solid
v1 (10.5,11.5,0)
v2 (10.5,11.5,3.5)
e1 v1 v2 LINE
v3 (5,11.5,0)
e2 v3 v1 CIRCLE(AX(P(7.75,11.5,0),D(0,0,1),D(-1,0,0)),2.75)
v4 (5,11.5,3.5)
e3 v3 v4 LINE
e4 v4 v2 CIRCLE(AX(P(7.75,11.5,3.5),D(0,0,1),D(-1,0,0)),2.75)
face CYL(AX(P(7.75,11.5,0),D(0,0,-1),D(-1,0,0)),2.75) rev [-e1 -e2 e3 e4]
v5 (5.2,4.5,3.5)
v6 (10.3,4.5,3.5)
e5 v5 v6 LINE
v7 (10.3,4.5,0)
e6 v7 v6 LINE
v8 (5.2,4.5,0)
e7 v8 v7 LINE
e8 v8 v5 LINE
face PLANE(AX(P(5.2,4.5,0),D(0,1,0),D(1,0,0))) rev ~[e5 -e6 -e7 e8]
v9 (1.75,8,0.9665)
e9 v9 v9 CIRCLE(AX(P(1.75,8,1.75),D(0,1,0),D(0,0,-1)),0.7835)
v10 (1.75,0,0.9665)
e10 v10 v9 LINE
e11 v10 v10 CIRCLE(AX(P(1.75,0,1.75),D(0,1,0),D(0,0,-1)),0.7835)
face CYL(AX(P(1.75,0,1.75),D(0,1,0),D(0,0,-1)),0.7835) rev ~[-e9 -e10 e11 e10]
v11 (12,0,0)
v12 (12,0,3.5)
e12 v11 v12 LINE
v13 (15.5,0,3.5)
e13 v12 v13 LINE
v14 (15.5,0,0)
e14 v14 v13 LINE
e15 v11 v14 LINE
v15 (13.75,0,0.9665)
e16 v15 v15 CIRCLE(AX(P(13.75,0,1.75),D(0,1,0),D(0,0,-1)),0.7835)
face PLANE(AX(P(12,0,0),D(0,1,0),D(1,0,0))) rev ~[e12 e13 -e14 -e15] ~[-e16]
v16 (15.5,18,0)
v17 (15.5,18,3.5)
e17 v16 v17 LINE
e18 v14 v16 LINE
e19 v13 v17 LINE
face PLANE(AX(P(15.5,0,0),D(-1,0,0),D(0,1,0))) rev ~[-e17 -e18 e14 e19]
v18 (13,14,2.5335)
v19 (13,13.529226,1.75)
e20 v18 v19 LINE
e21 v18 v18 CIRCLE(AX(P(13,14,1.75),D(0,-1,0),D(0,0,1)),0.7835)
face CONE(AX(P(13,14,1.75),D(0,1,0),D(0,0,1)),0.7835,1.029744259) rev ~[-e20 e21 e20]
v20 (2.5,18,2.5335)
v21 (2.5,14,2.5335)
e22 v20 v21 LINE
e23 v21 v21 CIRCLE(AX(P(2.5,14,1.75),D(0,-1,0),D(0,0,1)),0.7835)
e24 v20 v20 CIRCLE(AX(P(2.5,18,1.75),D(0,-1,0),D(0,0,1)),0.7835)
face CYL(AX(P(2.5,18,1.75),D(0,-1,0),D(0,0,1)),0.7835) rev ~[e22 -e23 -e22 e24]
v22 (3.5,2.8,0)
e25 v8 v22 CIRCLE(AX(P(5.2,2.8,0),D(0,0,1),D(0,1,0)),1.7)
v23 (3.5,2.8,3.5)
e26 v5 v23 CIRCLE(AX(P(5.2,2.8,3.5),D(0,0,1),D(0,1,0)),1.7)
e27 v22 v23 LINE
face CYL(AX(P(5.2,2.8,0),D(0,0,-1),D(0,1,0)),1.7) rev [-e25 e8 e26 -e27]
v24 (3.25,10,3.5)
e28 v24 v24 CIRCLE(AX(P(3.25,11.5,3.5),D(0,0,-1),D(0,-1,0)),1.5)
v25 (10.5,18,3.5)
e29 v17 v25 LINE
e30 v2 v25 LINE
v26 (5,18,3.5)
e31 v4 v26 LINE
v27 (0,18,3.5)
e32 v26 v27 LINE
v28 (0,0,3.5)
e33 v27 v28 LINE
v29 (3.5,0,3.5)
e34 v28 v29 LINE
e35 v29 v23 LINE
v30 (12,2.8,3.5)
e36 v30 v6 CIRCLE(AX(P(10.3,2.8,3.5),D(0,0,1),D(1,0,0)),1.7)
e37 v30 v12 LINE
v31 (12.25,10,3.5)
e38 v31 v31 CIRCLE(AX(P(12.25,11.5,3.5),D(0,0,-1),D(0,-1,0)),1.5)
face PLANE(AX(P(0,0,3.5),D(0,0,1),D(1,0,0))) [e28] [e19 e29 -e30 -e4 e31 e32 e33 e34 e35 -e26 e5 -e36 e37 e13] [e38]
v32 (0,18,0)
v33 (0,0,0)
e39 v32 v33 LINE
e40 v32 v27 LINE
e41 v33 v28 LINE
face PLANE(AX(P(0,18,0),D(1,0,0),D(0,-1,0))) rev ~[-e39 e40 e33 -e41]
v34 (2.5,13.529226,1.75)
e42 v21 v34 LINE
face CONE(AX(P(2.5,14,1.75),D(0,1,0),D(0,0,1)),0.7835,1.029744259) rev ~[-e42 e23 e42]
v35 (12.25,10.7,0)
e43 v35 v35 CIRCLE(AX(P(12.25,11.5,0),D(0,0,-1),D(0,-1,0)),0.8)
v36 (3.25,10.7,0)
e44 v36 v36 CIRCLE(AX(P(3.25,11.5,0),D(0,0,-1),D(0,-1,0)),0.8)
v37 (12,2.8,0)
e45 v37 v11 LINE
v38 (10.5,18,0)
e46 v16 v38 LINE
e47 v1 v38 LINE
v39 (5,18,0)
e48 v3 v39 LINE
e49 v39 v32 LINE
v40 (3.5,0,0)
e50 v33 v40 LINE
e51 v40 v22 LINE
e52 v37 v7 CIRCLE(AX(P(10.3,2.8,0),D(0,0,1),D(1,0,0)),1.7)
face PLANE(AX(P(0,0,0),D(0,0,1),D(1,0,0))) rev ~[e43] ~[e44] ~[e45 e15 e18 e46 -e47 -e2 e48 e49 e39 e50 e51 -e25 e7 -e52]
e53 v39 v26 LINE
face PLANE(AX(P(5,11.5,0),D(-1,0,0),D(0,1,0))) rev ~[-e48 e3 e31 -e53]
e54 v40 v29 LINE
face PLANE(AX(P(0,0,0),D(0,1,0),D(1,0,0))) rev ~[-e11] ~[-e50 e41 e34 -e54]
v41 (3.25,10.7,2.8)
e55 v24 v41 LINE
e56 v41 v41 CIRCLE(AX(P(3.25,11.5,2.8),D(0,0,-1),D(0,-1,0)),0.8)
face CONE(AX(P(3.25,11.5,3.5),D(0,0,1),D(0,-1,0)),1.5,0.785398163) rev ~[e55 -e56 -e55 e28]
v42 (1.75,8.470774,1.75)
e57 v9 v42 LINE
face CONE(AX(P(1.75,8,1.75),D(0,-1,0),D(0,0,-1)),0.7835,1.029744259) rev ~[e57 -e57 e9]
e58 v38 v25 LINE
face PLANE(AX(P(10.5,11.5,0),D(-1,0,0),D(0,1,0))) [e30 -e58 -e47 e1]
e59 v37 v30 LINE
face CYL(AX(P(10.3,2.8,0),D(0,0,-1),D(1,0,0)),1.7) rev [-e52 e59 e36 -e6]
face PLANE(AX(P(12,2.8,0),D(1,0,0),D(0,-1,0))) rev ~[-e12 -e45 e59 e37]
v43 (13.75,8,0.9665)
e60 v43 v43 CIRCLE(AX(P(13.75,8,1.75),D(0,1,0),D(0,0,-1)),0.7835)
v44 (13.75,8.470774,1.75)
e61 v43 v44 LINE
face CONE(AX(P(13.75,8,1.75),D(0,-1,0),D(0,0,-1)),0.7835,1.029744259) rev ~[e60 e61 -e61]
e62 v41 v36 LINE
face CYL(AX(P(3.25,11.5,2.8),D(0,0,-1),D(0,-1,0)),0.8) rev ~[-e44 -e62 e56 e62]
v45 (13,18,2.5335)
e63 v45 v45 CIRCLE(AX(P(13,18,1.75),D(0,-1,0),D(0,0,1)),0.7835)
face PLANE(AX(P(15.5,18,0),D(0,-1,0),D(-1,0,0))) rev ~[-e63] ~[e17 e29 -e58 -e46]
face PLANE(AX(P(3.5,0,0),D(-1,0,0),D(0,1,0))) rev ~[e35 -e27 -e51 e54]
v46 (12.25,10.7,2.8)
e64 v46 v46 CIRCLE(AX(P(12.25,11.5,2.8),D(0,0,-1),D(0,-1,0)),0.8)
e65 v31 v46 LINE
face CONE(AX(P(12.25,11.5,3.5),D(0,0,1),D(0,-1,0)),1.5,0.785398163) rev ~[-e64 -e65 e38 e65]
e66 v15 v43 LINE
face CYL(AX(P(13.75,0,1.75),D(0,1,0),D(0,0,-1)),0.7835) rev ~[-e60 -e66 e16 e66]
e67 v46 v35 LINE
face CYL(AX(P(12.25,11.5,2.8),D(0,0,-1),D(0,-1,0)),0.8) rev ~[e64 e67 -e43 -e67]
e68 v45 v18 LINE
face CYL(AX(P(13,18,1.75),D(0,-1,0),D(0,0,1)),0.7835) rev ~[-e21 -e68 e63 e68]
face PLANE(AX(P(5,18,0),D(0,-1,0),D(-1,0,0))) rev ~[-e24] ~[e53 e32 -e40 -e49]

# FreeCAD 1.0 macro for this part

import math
import FreeCAD as App
import Part
import Sketcher

V = App.Vector
Q = App.Units.Quantity

doc = App.newDocument("Part")
body = doc.addObject("PartDesign::Body", "Body")

# Sketch on XY plane
sketch1 = doc.addObject("Sketcher::SketchObject", "Sketch")
body.addObject(sketch1)
sketch1.AttachmentSupport = (doc.XY_Plane, [""])
sketch1.MapMode = "FlatFace"
sketch1.addGeometry(Part.LineSegment(V(5, 18, 0), V(0, 18, 0)), False)
sketch1.addGeometry(Part.LineSegment(V(0, 18, 0), V(0, 0, 0)), False)
sketch1.addGeometry(Part.LineSegment(V(0, 0, 0), V(3.5, 0, 0)), False)
sketch1.addGeometry(Part.LineSegment(V(3.5, 0, 0), V(3.5, 2.8, 0)), False)
sketch1.addGeometry(Part.ArcOfCircle(Part.Circle(V(5.2, 2.8, 0), V(0, 0, 1), 1.7), math.radians(90), math.radians(180)), False)
sketch1.addGeometry(Part.LineSegment(V(5.2, 4.5, 0), V(10.3, 4.5, 0)), False)
sketch1.addGeometry(Part.ArcOfCircle(Part.Circle(V(10.3, 2.8, 0), V(0, 0, 1), 1.7), math.radians(0), math.radians(90)), False)
sketch1.addGeometry(Part.LineSegment(V(12, 2.8, 0), V(12, 0, 0)), False)
sketch1.addGeometry(Part.LineSegment(V(12, 0, 0), V(15.5, 0, 0)), False)
sketch1.addGeometry(Part.LineSegment(V(15.5, 0, 0), V(15.5, 18, 0)), False)
sketch1.addGeometry(Part.LineSegment(V(15.5, 18, 0), V(10.5, 18, 0)), False)
sketch1.addGeometry(Part.LineSegment(V(10.5, 18, 0), V(10.5, 11.5, 0)), False)
sketch1.addGeometry(Part.ArcOfCircle(Part.Circle(V(7.8, 11.5, 0), V(0, 0, 1), 2.8), math.radians(180), math.radians(360)), False)
sketch1.addGeometry(Part.LineSegment(V(5, 11.5, 0), V(5, 18, 0)), False)
sketch1.addConstraint(Sketcher.Constraint("Coincident", 0, 2, 1, 1))
sketch1.addConstraint(Sketcher.Constraint("Coincident", 1, 2, 2, 1))
sketch1.addConstraint(Sketcher.Constraint("Coincident", 2, 2, 3, 1))
sketch1.addConstraint(Sketcher.Constraint("Tangent", 3, 2, 4, 2))
sketch1.addConstraint(Sketcher.Constraint("Tangent", 4, 1, 5, 1))
sketch1.addConstraint(Sketcher.Constraint("Tangent", 5, 2, 6, 2))
sketch1.addConstraint(Sketcher.Constraint("Tangent", 6, 1, 7, 1))
sketch1.addConstraint(Sketcher.Constraint("Coincident", 7, 2, 8, 1))
sketch1.addConstraint(Sketcher.Constraint("Coincident", 8, 2, 9, 1))
sketch1.addConstraint(Sketcher.Constraint("Coincident", 9, 2, 10, 1))
sketch1.addConstraint(Sketcher.Constraint("Coincident", 10, 2, 11, 1))
sketch1.addConstraint(Sketcher.Constraint("Tangent", 11, 2, 12, 2))
sketch1.addConstraint(Sketcher.Constraint("Tangent", 12, 1, 13, 1))
sketch1.addConstraint(Sketcher.Constraint("Coincident", 13, 2, 0, 1))
sketch1.addConstraint(Sketcher.Constraint("Horizontal", 0))
sketch1.addConstraint(Sketcher.Constraint("Vertical", 1))
sketch1.addConstraint(Sketcher.Constraint("Horizontal", 2))
sketch1.addConstraint(Sketcher.Constraint("Vertical", 3))
sketch1.addConstraint(Sketcher.Constraint("Horizontal", 5))
sketch1.addConstraint(Sketcher.Constraint("Vertical", 7))
sketch1.addConstraint(Sketcher.Constraint("Horizontal", 8))
sketch1.addConstraint(Sketcher.Constraint("Vertical", 9))
sketch1.addConstraint(Sketcher.Constraint("Horizontal", 10))
sketch1.addConstraint(Sketcher.Constraint("Vertical", 11))
sketch1.addConstraint(Sketcher.Constraint("Vertical", 13))
sketch1.addConstraint(Sketcher.Constraint("Coincident", 1, 2, -1, 1))
sketch1.addConstraint(Sketcher.Constraint("Equal", 4, 6))
sketch1.addConstraint(Sketcher.Constraint("PointOnObject", 7, 2, -1))
sketch1.addConstraint(Sketcher.Constraint("Horizontal", 0, 2, 9, 2))
sketch1.addConstraint(Sketcher.Constraint("Equal", 2, 8))
sketch1.addConstraint(Sketcher.Constraint("Equal", 0, 10))
sketch1.addConstraint(Sketcher.Constraint("Radius", 4, Q("1.7 mm")))
sketch1.addConstraint(Sketcher.Constraint("DistanceX", 0, 2, 0, 1, Q("5 mm")))
sketch1.addConstraint(Sketcher.Constraint("DistanceY", 1, 2, 1, 1, Q("18 mm")))
sketch1.addConstraint(Sketcher.Constraint("Radius", 12, Q("2.75 mm")))
sketch1.addConstraint(Sketcher.Constraint("DistanceX", 2, 1, 2, 2, Q("3.5 mm")))
sketch1.addConstraint(Sketcher.Constraint("DistanceY", 3, 1, 3, 2, Q("2.8 mm")))
sketch1.addConstraint(Sketcher.Constraint("DistanceY", 11, 2, 11, 1, Q("6.5 mm")))
pad1 = doc.addObject("PartDesign::Pad", "Pad")
body.addObject(pad1)
pad1.Profile = sketch1
pad1.Length = 3.5

# Sketch on XY plane
sketch2 = doc.addObject("Sketcher::SketchObject", "Sketch001")
body.addObject(sketch2)
sketch2.AttachmentSupport = (doc.XY_Plane, [""])
sketch2.MapMode = "FlatFace"
sketch2.AttachmentOffset = App.Placement(V(0, 0, 3.5), App.Rotation())
sketch2.addGeometry(Part.Circle(V(3.2, 11.5, 0), V(0, 0, 1), 0.8), False)
sketch2.addGeometry(Part.Circle(V(12.2, 11.5, 0), V(0, 0, 1), 0.8), False)
sketch2.addConstraint(Sketcher.Constraint("Equal", 0, 1))
sketch2.addConstraint(Sketcher.Constraint("Horizontal", 0, 3, 1, 3))
sketch2.addConstraint(Sketcher.Constraint("Diameter", 0, Q("1.6 mm")))
sketch2.addConstraint(Sketcher.Constraint("DistanceX", 0, 3, 1, 3, Q("9 mm")))
sketch2.addConstraint(Sketcher.Constraint("DistanceY", -1, 1, 0, 3, Q("11.5 mm")))
sketch2.addConstraint(Sketcher.Constraint("DistanceX", -1, 1, 0, 3, Q("3.25 mm")))
doc.recompute()
hole = doc.addObject("PartDesign::Hole", "Hole")
body.addObject(hole)
hole.Profile = sketch2
hole.ThreadType = "None"
hole.Diameter = 1.6
hole.DepthType = "ThroughAll"
hole.HoleCutType = "Countersink"
hole.HoleCutDiameter = 3
hole.HoleCutCountersinkAngle = 90

# Sketch on XZ plane
sketch3 = doc.addObject("Sketcher::SketchObject", "Sketch002")
body.addObject(sketch3)
sketch3.AttachmentSupport = (doc.XZ_Plane, [""])
sketch3.MapMode = "FlatFace"
sketch3.AttachmentOffset = App.Placement(V(0, 0, -18), App.Rotation())
sketch3.addGeometry(Part.Circle(V(2.5, 1.8, 0), V(0, 0, 1), 0.8), False)
sketch3.addGeometry(Part.Circle(V(13, 1.8, 0), V(0, 0, 1), 0.8), False)
sketch3.addConstraint(Sketcher.Constraint("Equal", 0, 1))
sketch3.addConstraint(Sketcher.Constraint("Horizontal", 0, 3, 1, 3))
sketch3.addConstraint(Sketcher.Constraint("Diameter", 0, Q("1.567 mm")))
sketch3.addConstraint(Sketcher.Constraint("DistanceX", -1, 1, 1, 3, Q("13 mm")))
sketch3.addConstraint(Sketcher.Constraint("DistanceX", -1, 1, 0, 3, Q("2.5 mm")))
sketch3.addConstraint(Sketcher.Constraint("DistanceY", -1, 1, 0, 3, Q("1.75 mm")))
doc.recompute()
hole2 = doc.addObject("PartDesign::Hole", "Hole001")
body.addObject(hole2)
hole2.Profile = sketch3
hole2.ThreadType = "None"
hole2.Diameter = 1.567
hole2.DepthType = "Dimension"
hole2.Depth = 4
hole2.DrillPoint = "Angled"
hole2.DrillPointAngle = 118
hole2.Reversed = True

# Sketch on XZ plane
sketch4 = doc.addObject("Sketcher::SketchObject", "Sketch003")
body.addObject(sketch4)
sketch4.AttachmentSupport = (doc.XZ_Plane, [""])
sketch4.MapMode = "FlatFace"
sketch4.addGeometry(Part.Circle(V(1.8, 1.8, 0), V(0, 0, 1), 0.8), False)
sketch4.addGeometry(Part.Circle(V(13.8, 1.8, 0), V(0, 0, 1), 0.8), False)
sketch4.addConstraint(Sketcher.Constraint("Equal", 0, 1))
sketch4.addConstraint(Sketcher.Constraint("Horizontal", 0, 3, 1, 3))
sketch4.addConstraint(Sketcher.Constraint("Diameter", 0, Q("1.567 mm")))
sketch4.addConstraint(Sketcher.Constraint("DistanceX", 0, 3, 1, 3, Q("12 mm")))
sketch4.addConstraint(Sketcher.Constraint("DistanceX", -1, 1, 0, 3, Q("1.75 mm")))
sketch4.addConstraint(Sketcher.Constraint("DistanceY", -1, 1, 0, 3, Q("1.75 mm")))
doc.recompute()
hole3 = doc.addObject("PartDesign::Hole", "Hole002")
body.addObject(hole3)
hole3.Profile = sketch4
hole3.ThreadType = "None"
hole3.Diameter = 1.567
hole3.DepthType = "Dimension"
hole3.Depth = 8
hole3.DrillPoint = "Angled"
hole3.DrillPointAngle = 118

doc.recompute()
